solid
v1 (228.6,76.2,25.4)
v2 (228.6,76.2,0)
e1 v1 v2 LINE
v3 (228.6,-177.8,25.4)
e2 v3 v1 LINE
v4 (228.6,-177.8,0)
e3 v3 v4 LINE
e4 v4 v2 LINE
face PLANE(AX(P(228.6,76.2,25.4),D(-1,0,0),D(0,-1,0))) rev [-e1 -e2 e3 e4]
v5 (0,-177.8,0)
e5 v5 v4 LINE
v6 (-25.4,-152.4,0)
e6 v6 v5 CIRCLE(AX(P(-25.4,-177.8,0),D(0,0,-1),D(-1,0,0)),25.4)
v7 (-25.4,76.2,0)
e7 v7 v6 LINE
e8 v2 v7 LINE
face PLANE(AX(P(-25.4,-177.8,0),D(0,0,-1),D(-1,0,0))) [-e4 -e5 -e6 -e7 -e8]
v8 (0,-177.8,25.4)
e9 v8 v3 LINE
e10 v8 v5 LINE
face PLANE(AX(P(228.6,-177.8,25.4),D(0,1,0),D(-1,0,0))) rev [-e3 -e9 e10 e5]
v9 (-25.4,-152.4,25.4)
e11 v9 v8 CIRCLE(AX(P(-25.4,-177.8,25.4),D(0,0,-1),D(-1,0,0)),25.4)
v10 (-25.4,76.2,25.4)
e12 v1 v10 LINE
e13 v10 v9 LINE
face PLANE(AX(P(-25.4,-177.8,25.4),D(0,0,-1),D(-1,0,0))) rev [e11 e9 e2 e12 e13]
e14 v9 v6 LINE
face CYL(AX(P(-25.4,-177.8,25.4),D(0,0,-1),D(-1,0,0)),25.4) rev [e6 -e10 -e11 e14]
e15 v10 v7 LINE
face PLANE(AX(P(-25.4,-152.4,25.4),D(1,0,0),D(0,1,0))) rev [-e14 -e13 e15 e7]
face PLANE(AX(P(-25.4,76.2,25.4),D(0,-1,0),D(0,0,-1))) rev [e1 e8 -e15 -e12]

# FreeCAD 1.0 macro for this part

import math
import FreeCAD as App
import Part
import Sketcher

V = App.Vector
Q = App.Units.Quantity

doc = App.newDocument("Part")
params = doc.addObject("Spreadsheet::Sheet", "Params")
for row, (alias, value) in enumerate([
    ("sketch1_radius", "1 in"),
    ("sketch1_width", "9 in"),
    ("pad1_length", "1 in"),
], start=1):
    params.set(f"A{row}", alias)
    params.set(f"B{row}", "=" + value)
    params.setAlias(f"B{row}", alias)

body = doc.addObject("PartDesign::Body", "Body")

# Sketch on XY plane
sketch1 = doc.addObject("Sketcher::SketchObject", "Sketch")
body.addObject(sketch1)
sketch1.AttachmentSupport = (doc.XY_Plane, [""])
sketch1.MapMode = "FlatFace"
sketch1.addGeometry(Part.LineSegment(V(-25.4, 76.2, 0), V(-25.4, -152.4, 0)), False)
sketch1.addGeometry(Part.ArcOfCircle(Part.Circle(V(-25.4, -177.8, 0), V(0, 0, 1), 25.4), math.radians(0), math.radians(90)), False)
sketch1.addGeometry(Part.LineSegment(V(0, -177.8, 0), V(228.6, -177.8, 0)), False)
sketch1.addGeometry(Part.LineSegment(V(228.6, -177.8, 0), V(228.6, 76.2, 0)), False)
sketch1.addGeometry(Part.LineSegment(V(228.6, 76.2, 0), V(-25.4, 76.2, 0)), False)
sketch1.addConstraint(Sketcher.Constraint("Coincident", 0, 2, 1, 2))
sketch1.addConstraint(Sketcher.Constraint("Coincident", 1, 1, 2, 1))
sketch1.addConstraint(Sketcher.Constraint("Coincident", 2, 2, 3, 1))
sketch1.addConstraint(Sketcher.Constraint("Coincident", 3, 2, 4, 1))
sketch1.addConstraint(Sketcher.Constraint("Coincident", 4, 2, 0, 1))
sketch1.addConstraint(Sketcher.Constraint("Vertical", 0))
sketch1.addConstraint(Sketcher.Constraint("Horizontal", 2))
sketch1.addConstraint(Sketcher.Constraint("Vertical", 3))
sketch1.addConstraint(Sketcher.Constraint("Horizontal", 4))
sketch1.addConstraint(Sketcher.Constraint("PointOnObject", 1, 1, -2))
sketch1.addConstraint(Sketcher.Constraint("Vertical", 1, 3, 0, 2))
sketch1.addConstraint(Sketcher.Constraint("Equal", 2, 0))
sketch1.addConstraint(Sketcher.Constraint("Equal", 4, 3))
sketch1.addConstraint(Sketcher.Constraint("Radius", 1, Q("1 in")))
sketch1.addConstraint(Sketcher.Constraint("DistanceX", 2, 1, 2, 2, Q("9 in")))
sketch1.addConstraint(Sketcher.Constraint("DistanceY", 1, 3, -1, 1, Q("7 in")))
sketch1.setExpression("Constraints[13]", "Params.sketch1_radius")
sketch1.setExpression("Constraints[14]", "Params.sketch1_width")
pad1 = doc.addObject("PartDesign::Pad", "Pad")
body.addObject(pad1)
pad1.Profile = sketch1
pad1.setExpression("Length", "Params.pad1_length")

doc.recompute()
